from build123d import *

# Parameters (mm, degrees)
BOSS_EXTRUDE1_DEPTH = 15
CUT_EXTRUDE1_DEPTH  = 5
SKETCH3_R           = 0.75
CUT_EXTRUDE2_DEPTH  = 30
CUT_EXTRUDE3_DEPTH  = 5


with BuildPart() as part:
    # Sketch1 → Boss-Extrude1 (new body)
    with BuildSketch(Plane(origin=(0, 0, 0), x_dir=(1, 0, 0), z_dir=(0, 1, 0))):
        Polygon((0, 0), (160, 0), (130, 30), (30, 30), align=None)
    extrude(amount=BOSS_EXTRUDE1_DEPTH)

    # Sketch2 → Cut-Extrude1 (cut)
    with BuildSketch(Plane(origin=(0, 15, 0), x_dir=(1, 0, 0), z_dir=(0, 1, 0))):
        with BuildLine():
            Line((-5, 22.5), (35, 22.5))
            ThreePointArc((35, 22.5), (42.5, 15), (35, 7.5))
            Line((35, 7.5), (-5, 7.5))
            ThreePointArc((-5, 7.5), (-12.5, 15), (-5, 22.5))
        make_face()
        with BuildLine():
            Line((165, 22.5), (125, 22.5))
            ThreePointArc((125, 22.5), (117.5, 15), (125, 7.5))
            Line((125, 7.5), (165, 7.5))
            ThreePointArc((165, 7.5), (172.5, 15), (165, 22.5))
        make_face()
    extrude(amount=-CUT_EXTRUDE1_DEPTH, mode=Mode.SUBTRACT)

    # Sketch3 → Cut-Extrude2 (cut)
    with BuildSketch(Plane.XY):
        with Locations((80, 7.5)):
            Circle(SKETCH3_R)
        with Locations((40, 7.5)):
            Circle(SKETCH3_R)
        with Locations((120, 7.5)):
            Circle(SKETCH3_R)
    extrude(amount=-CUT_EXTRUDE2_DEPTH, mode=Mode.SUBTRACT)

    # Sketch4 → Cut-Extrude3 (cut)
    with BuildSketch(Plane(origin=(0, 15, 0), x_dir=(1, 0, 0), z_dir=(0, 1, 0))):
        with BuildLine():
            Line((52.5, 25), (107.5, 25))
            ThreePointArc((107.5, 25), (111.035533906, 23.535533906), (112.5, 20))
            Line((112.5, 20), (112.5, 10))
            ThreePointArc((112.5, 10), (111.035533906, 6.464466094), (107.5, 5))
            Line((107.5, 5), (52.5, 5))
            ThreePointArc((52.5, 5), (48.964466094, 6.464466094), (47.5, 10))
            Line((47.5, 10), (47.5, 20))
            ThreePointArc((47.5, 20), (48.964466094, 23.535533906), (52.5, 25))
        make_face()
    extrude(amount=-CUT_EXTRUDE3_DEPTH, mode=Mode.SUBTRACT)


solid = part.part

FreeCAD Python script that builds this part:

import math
import FreeCAD as App
import Part
import Sketcher
from FreeCAD import Vector
Q = App.Units.Quantity

doc = App.newDocument("Part")
body = doc.addObject("PartDesign::Body", "Body")

sketch1 = doc.addObject("Sketcher::SketchObject", "Sketch")
body.addObject(sketch1)
sketch1.AttachmentSupport = (doc.XZ_Plane, [""])
sketch1.MapMode = "FlatFace"
sketch1.addGeometry(Part.LineSegment(Vector(0, 0, 0), Vector(160, 0, 0)), False)
sketch1.addGeometry(Part.LineSegment(Vector(160, 0, 0), Vector(130, -30, 0)), False)
sketch1.addGeometry(Part.LineSegment(Vector(130, -30, 0), Vector(30, -30, 0)), False)
sketch1.addGeometry(Part.LineSegment(Vector(30, -30, 0), Vector(0, 0, 0)), False)
sketch1.addConstraint(Sketcher.Constraint("Coincident", 0, 2, 1, 1))
sketch1.addConstraint(Sketcher.Constraint("Coincident", 1, 2, 2, 1))
sketch1.addConstraint(Sketcher.Constraint("Coincident", 2, 2, 3, 1))
sketch1.addConstraint(Sketcher.Constraint("Coincident", 3, 2, 0, 1))
sketch1.addConstraint(Sketcher.Constraint("Horizontal", 0))
sketch1.addConstraint(Sketcher.Constraint("Horizontal", 2))
sketch1.addConstraint(Sketcher.Constraint("Coincident", 3, 2, -1, 1))
sketch1.addConstraint(Sketcher.Constraint("Perpendicular", 1, 3))
sketch1.addConstraint(Sketcher.Constraint("Equal", 1, 3))
sketch1.addConstraint(Sketcher.Constraint("DistanceX", 0, 1, 0, 2, Q("160 mm")))
sketch1.addConstraint(Sketcher.Constraint("DistanceX", 2, 2, 2, 1, Q("100 mm")))
pad1 = doc.addObject("PartDesign::Pad", "Pad")
body.addObject(pad1)
pad1.Profile = sketch1
pad1.Length = 15
pad1.Reversed = True

sketch2 = doc.addObject("Sketcher::SketchObject", "Sketch001")
body.addObject(sketch2)
sketch2.AttachmentSupport = (doc.XZ_Plane, [""])
sketch2.MapMode = "FlatFace"
sketch2.AttachmentOffset = App.Placement(Vector(0, 0, -15), App.Rotation())
sketch2.addGeometry(Part.LineSegment(Vector(35, -22, 0), Vector(-5, -22, 0)), False)
sketch2.addGeometry(Part.ArcOfCircle(Part.Circle(Vector(-5, -15, 0), Vector(0, 0, 1), 8), math.radians(90), math.radians(270)), False)
sketch2.addGeometry(Part.LineSegment(Vector(-5, -8, 0), Vector(35, -8, 0)), False)
sketch2.addGeometry(Part.ArcOfCircle(Part.Circle(Vector(35, -15, 0), Vector(0, 0, 1), 8), math.radians(-90), math.radians(90)), False)
sketch2.addGeometry(Part.LineSegment(Vector(165, -22, 0), Vector(125, -22, 0)), False)
sketch2.addGeometry(Part.ArcOfCircle(Part.Circle(Vector(125, -15, 0), Vector(0, 0, 1), 8), math.radians(90), math.radians(270)), False)
sketch2.addGeometry(Part.LineSegment(Vector(125, -8, 0), Vector(165, -8, 0)), False)
sketch2.addGeometry(Part.ArcOfCircle(Part.Circle(Vector(165, -15, 0), Vector(0, 0, 1), 8), math.radians(-90), math.radians(90)), False)
sketch2.addConstraint(Sketcher.Constraint("Tangent", 0, 2, 1, 2))
sketch2.addConstraint(Sketcher.Constraint("Tangent", 1, 1, 2, 1))
sketch2.addConstraint(Sketcher.Constraint("Tangent", 2, 2, 3, 2))
sketch2.addConstraint(Sketcher.Constraint("Tangent", 3, 1, 0, 1))
sketch2.addConstraint(Sketcher.Constraint("Tangent", 4, 2, 5, 2))
sketch2.addConstraint(Sketcher.Constraint("Tangent", 5, 1, 6, 1))
sketch2.addConstraint(Sketcher.Constraint("Tangent", 6, 2, 7, 2))
sketch2.addConstraint(Sketcher.Constraint("Tangent", 7, 1, 4, 1))
sketch2.addConstraint(Sketcher.Constraint("Horizontal", 0))
sketch2.addConstraint(Sketcher.Constraint("Horizontal", 2))
sketch2.addConstraint(Sketcher.Constraint("Horizontal", 4))
sketch2.addConstraint(Sketcher.Constraint("Horizontal", 6))
sketch2.addConstraint(Sketcher.Constraint("Equal", 3, 5))
sketch2.addConstraint(Sketcher.Constraint("Horizontal", 3, 3, 5, 3))
sketch2.addConstraint(Sketcher.Constraint("Equal", 2, 4))
sketch2.addConstraint(Sketcher.Constraint("Radius", 1, Q("7.5 mm")))
sketch2.addConstraint(Sketcher.Constraint("DistanceX", 0, 2, 0, 1, Q("40 mm")))
sketch2.addConstraint(Sketcher.Constraint("DistanceX", 1, 3, -1, 1, Q("5 mm")))
sketch2.addConstraint(Sketcher.Constraint("DistanceY", 1, 3, -1, 1, Q("15 mm")))
sketch2.addConstraint(Sketcher.Constraint("DistanceX", -1, 1, 5, 3, Q("125 mm")))
pocket1 = doc.addObject("PartDesign::Pocket", "Pocket")
body.addObject(pocket1)
pocket1.Profile = sketch2
pocket1.Length = 5
pocket1.Reversed = True

sketch3 = doc.addObject("Sketcher::SketchObject", "Sketch002")
body.addObject(sketch3)
sketch3.AttachmentSupport = (doc.XY_Plane, [""])
sketch3.MapMode = "FlatFace"
sketch3.addGeometry(Part.Circle(Vector(80, 7.5, 0), Vector(0, 0, 1), 0.8), False)
sketch3.addGeometry(Part.Circle(Vector(40, 7.5, 0), Vector(0, 0, 1), 0.8), False)
sketch3.addGeometry(Part.Circle(Vector(120, 7.5, 0), Vector(0, 0, 1), 0.8), False)
sketch3.addConstraint(Sketcher.Constraint("Equal", 0, 1))
sketch3.addConstraint(Sketcher.Constraint("Equal", 1, 2))
sketch3.addConstraint(Sketcher.Constraint("Horizontal", 0, 3, 1, 3))
sketch3.addConstraint(Sketcher.Constraint("Horizontal", 1, 3, 2, 3))
sketch3.addConstraint(Sketcher.Constraint("Diameter", 0, Q("1.5 mm")))
sketch3.addConstraint(Sketcher.Constraint("DistanceX", -1, 1, 0, 3, Q("80 mm")))
sketch3.addConstraint(Sketcher.Constraint("DistanceX", -1, 1, 1, 3, Q("40 mm")))
sketch3.addConstraint(Sketcher.Constraint("DistanceX", -1, 1, 2, 3, Q("120 mm")))
sketch3.addConstraint(Sketcher.Constraint("DistanceY", -1, 1, 0, 3, Q("7.5 mm")))
pocket2 = doc.addObject("PartDesign::Pocket", "Pocket001")
body.addObject(pocket2)
pocket2.Profile = sketch3
pocket2.Length = 30

sketch4 = doc.addObject("Sketcher::SketchObject", "Sketch003")
body.addObject(sketch4)
sketch4.AttachmentSupport = (doc.XZ_Plane, [""])
sketch4.MapMode = "FlatFace"
sketch4.AttachmentOffset = App.Placement(Vector(0, 0, -15), App.Rotation())
sketch4.addGeometry(Part.LineSegment(Vector(108, -25, 0), Vector(52, -25, 0)), False)
sketch4.addGeometry(Part.ArcOfCircle(Part.Circle(Vector(52, -20, 0), Vector(0, 0, 1), 5), math.radians(180), math.radians(270)), False)
sketch4.addGeometry(Part.LineSegment(Vector(48, -20, 0), Vector(48, -10, 0)), False)
sketch4.addGeometry(Part.ArcOfCircle(Part.Circle(Vector(52, -10, 0), Vector(0, 0, 1), 5), math.radians(90), math.radians(180)), False)
sketch4.addGeometry(Part.LineSegment(Vector(52, -5, 0), Vector(108, -5, 0)), False)
sketch4.addGeometry(Part.ArcOfCircle(Part.Circle(Vector(108, -10, 0), Vector(0, 0, 1), 5), math.radians(0), math.radians(90)), False)
sketch4.addGeometry(Part.LineSegment(Vector(112, -10, 0), Vector(112, -20, 0)), False)
sketch4.addGeometry(Part.ArcOfCircle(Part.Circle(Vector(108, -20, 0), Vector(0, 0, 1), 5), math.radians(-90), math.radians(0)), False)
sketch4.addConstraint(Sketcher.Constraint("Tangent", 0, 2, 1, 2))
sketch4.addConstraint(Sketcher.Constraint("Tangent", 1, 1, 2, 1))
sketch4.addConstraint(Sketcher.Constraint("Tangent", 2, 2, 3, 2))
sketch4.addConstraint(Sketcher.Constraint("Tangent", 3, 1, 4, 1))
sketch4.addConstraint(Sketcher.Constraint("Tangent", 4, 2, 5, 2))
sketch4.addConstraint(Sketcher.Constraint("Tangent", 5, 1, 6, 1))
sketch4.addConstraint(Sketcher.Constraint("Tangent", 6, 2, 7, 2))
sketch4.addConstraint(Sketcher.Constraint("Tangent", 7, 1, 0, 1))
sketch4.addConstraint(Sketcher.Constraint("Horizontal", 0))
sketch4.addConstraint(Sketcher.Constraint("Vertical", 2))
sketch4.addConstraint(Sketcher.Constraint("Horizontal", 4))
sketch4.addConstraint(Sketcher.Constraint("Vertical", 6))
sketch4.addConstraint(Sketcher.Constraint("Equal", 1, 3))
sketch4.addConstraint(Sketcher.Constraint("Equal", 3, 5))
sketch4.addConstraint(Sketcher.Constraint("Equal", 5, 7))
sketch4.addConstraint(Sketcher.Constraint("Radius", 1, Q("5 mm")))
sketch4.addConstraint(Sketcher.Constraint("DistanceX", 0, 2, 0, 1, Q("55 mm")))
sketch4.addConstraint(Sketcher.Constraint("DistanceY", 2, 1, 2, 2, Q("10 mm")))
sketch4.addConstraint(Sketcher.Constraint("DistanceY", 1, 3, -1, 1, Q("20 mm")))
sketch4.addConstraint(Sketcher.Constraint("DistanceX", -1, 1, 1, 3, Q("52.5 mm")))
pocket3 = doc.addObject("PartDesign::Pocket", "Pocket002")
body.addObject(pocket3)
pocket3.Profile = sketch4
pocket3.Length = 5
pocket3.Reversed = True

doc.recompute()
